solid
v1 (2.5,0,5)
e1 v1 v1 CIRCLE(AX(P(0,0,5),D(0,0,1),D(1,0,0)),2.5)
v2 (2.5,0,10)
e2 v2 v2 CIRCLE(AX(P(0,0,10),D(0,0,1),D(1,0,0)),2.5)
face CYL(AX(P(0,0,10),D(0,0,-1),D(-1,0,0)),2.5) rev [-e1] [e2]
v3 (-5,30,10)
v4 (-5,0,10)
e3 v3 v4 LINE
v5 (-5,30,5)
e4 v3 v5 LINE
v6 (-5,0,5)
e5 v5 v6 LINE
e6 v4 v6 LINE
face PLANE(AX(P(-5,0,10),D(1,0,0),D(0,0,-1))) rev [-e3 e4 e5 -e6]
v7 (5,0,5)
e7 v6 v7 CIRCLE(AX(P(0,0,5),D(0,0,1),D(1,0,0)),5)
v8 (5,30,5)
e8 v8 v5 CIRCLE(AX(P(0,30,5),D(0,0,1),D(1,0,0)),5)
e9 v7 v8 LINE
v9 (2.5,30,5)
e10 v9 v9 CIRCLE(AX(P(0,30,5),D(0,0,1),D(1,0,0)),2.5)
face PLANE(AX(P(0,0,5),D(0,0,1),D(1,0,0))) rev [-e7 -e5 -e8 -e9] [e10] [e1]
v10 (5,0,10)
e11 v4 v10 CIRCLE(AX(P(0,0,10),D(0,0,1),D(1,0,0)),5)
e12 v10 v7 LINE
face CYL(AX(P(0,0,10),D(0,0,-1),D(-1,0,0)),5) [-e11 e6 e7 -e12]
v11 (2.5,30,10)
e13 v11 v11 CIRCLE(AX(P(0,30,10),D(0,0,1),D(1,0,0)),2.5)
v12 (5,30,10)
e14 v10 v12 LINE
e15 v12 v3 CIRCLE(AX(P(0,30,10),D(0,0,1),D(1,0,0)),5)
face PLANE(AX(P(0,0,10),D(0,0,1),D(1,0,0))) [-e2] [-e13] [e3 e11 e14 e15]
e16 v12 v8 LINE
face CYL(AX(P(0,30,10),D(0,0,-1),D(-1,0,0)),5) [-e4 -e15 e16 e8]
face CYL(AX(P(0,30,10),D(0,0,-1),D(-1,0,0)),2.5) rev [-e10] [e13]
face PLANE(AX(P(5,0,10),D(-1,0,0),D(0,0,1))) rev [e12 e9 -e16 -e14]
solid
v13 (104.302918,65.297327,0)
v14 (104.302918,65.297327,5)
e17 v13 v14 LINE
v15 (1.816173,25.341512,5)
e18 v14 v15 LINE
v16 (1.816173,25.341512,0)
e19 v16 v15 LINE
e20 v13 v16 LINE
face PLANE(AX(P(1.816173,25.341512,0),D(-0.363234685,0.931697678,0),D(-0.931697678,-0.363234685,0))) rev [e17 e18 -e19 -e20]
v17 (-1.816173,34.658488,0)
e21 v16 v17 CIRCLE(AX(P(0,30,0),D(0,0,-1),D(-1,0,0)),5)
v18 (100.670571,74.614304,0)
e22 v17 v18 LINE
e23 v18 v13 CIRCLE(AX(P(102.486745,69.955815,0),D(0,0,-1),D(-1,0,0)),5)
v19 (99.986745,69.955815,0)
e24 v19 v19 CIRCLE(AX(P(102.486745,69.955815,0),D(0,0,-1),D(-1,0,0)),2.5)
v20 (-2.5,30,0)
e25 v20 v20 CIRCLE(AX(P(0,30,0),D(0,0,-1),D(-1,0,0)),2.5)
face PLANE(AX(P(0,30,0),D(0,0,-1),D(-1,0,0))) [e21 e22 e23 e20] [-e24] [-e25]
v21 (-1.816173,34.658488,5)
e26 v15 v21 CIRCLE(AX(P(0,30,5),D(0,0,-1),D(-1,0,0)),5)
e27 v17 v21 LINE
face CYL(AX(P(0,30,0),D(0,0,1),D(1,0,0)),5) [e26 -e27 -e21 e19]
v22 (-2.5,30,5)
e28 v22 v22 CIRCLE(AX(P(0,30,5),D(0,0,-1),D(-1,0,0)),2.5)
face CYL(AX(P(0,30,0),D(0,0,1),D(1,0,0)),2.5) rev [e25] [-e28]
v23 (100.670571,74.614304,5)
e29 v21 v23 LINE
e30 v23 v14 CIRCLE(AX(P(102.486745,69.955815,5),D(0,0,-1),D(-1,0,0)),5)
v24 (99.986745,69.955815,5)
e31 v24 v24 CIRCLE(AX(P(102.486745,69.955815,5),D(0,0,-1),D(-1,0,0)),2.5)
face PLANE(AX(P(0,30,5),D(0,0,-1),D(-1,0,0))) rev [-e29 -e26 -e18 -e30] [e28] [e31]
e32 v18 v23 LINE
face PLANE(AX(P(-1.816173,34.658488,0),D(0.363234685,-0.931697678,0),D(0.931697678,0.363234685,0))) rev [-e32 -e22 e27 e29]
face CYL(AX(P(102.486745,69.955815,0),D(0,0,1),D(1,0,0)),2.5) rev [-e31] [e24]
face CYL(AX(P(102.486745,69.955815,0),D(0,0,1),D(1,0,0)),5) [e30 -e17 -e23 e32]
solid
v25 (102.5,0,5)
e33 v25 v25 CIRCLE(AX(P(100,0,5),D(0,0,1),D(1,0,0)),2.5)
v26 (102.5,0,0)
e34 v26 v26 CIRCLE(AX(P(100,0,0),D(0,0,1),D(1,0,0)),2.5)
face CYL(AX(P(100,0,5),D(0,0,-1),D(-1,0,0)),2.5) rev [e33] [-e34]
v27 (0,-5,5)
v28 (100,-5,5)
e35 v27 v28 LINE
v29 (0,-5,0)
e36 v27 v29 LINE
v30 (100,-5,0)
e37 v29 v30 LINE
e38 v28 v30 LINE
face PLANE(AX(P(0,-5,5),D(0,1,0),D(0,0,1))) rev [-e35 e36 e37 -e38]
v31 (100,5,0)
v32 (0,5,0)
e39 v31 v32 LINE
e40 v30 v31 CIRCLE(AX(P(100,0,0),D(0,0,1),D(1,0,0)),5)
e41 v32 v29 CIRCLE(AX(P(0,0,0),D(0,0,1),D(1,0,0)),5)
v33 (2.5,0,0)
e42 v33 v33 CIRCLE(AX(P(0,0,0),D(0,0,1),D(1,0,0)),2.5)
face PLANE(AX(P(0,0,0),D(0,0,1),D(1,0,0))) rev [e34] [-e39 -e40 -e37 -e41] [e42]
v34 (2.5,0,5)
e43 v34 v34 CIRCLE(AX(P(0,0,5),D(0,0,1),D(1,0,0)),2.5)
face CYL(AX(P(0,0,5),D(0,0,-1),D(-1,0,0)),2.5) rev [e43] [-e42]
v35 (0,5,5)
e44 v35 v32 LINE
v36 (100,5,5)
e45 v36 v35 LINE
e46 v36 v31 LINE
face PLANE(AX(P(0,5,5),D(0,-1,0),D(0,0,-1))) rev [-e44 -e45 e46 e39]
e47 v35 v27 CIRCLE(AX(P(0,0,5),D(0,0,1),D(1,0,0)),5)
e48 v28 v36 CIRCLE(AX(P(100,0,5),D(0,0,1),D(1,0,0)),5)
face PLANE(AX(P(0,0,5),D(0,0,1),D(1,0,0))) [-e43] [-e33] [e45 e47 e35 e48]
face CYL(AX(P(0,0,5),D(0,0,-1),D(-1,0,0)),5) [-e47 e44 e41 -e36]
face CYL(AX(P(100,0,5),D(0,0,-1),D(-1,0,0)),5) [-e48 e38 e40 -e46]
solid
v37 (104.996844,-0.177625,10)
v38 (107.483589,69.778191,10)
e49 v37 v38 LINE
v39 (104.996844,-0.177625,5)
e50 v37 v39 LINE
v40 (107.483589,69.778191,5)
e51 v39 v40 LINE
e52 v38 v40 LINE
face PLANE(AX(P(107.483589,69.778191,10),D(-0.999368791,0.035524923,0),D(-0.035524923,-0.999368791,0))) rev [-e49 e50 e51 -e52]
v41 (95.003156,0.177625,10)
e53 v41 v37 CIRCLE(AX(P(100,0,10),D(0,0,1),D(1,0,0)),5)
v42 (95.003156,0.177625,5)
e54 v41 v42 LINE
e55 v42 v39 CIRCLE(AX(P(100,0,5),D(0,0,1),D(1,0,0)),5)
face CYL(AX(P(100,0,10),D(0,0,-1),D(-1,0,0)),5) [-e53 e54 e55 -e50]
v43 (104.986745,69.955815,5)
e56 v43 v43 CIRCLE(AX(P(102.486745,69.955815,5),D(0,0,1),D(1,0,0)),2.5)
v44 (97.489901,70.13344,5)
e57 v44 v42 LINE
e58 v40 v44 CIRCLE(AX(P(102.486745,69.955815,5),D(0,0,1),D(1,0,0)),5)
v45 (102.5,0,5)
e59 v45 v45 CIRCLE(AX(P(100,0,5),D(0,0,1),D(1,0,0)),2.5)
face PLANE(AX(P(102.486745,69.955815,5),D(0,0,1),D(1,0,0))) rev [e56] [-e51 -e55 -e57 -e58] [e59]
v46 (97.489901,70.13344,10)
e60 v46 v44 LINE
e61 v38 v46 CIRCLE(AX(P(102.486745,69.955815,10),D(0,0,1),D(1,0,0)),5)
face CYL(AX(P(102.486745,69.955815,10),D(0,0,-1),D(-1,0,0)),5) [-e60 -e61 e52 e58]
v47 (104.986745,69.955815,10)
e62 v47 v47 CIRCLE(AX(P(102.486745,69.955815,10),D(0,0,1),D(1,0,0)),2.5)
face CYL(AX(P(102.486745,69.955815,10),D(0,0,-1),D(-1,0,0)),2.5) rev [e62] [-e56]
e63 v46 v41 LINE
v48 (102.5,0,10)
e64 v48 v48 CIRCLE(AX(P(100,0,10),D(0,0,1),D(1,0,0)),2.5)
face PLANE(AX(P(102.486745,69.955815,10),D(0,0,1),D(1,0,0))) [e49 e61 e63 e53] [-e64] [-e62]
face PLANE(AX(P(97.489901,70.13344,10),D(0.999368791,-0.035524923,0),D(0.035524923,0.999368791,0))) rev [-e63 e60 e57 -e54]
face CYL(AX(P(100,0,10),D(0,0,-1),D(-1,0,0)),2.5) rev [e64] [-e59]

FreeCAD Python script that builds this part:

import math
import FreeCAD as App
import Part
import Sketcher
Q = App.Units.Quantity

doc = App.newDocument("Part")
body = doc.addObject("PartDesign::Body", "Body")

sketch1 = body.newObject("Sketcher::SketchObject", "Sketch")
sketch1.AttachmentSupport = (doc.getObject("XY_Plane"), [""])
sketch1.MapMode = "FlatFace"
sketch1.addGeometry([
    Part.LineSegment(App.Vector(100, 5, 0), App.Vector(0, 5, 0)),
    Part.ArcOfCircle(Part.Circle(App.Vector(0, 0, 0), App.Vector(0, 0, 1), 5), math.radians(90), math.radians(270)),
    Part.LineSegment(App.Vector(0, -5, 0), App.Vector(100, -5, 0)),
    Part.ArcOfCircle(Part.Circle(App.Vector(100, 0, 0), App.Vector(0, 0, 1), 5), math.radians(-90), math.radians(90)),
    Part.Circle(App.Vector(100, 0, 0), App.Vector(0, 0, 1), 2.5),
    Part.Circle(App.Vector(0, 0, 0), App.Vector(0, 0, 1), 2.5),
], False)
sketch1.addConstraint([
    Sketcher.Constraint("Tangent", 0, 2, 1, 1),
    Sketcher.Constraint("Tangent", 1, 2, 2, 1),
    Sketcher.Constraint("Tangent", 2, 2, 3, 1),
    Sketcher.Constraint("Tangent", 3, 2, 0, 1),
    Sketcher.Constraint("Horizontal", 0),
    Sketcher.Constraint("Horizontal", 2),
    Sketcher.Constraint("Coincident", 1, 3, -1, 1),
    Sketcher.Constraint("Coincident", 5, 3, -1, 1),
    Sketcher.Constraint("Coincident", 4, 3, 3, 3),
    Sketcher.Constraint("Equal", 4, 5),
    Sketcher.Constraint("Diameter", 4, Q("5 mm")),
    Sketcher.Constraint("Radius", 1, Q("5 mm")),
    Sketcher.Constraint("DistanceX", 0, 2, 0, 1, Q("100 mm")),
])
pad1 = body.newObject("PartDesign::Pad", "Pad")
pad1.Profile = sketch1
pad1.Length = 5
body2 = doc.addObject("PartDesign::Body", "Body001")

sketch2 = body2.newObject("Sketcher::SketchObject", "Sketch001")
sketch2.AttachmentSupport = (doc.getObject("XY_Plane001"), [""])
sketch2.MapMode = "FlatFace"
sketch2.AttachmentOffset = App.Placement(App.Vector(0, 0, 5), App.Rotation())
sketch2.addGeometry([
    Part.LineSegment(App.Vector(-5, 30, 0), App.Vector(-5, 0, 0)),
    Part.ArcOfCircle(Part.Circle(App.Vector(0, 0, 0), App.Vector(0, 0, 1), 5), math.radians(180), math.radians(360)),
    Part.LineSegment(App.Vector(5, 0, 0), App.Vector(5, 30, 0)),
    Part.ArcOfCircle(Part.Circle(App.Vector(0, 30, 0), App.Vector(0, 0, 1), 5), math.radians(0), math.radians(180)),
    Part.Circle(App.Vector(0, 0, 0), App.Vector(0, 0, 1), 2.5),
    Part.Circle(App.Vector(0, 30, 0), App.Vector(0, 0, 1), 2.5),
], False)
sketch2.addConstraint([
    Sketcher.Constraint("Tangent", 0, 2, 1, 1),
    Sketcher.Constraint("Tangent", 1, 2, 2, 1),
    Sketcher.Constraint("Tangent", 2, 2, 3, 1),
    Sketcher.Constraint("Tangent", 3, 2, 0, 1),
    Sketcher.Constraint("Vertical", 0),
    Sketcher.Constraint("Vertical", 2),
    Sketcher.Constraint("Coincident", 1, 3, -1, 1),
    Sketcher.Constraint("Coincident", 4, 3, -1, 1),
    Sketcher.Constraint("Coincident", 5, 3, 3, 3),
    Sketcher.Constraint("Equal", 4, 5),
    Sketcher.Constraint("Diameter", 4, Q("5 mm")),
    Sketcher.Constraint("Radius", 1, Q("5 mm")),
    Sketcher.Constraint("DistanceY", 0, 2, 0, 1, Q("30 mm")),
])
pad2 = body2.newObject("PartDesign::Pad", "Pad001")
pad2.Profile = sketch2
pad2.Length = 5
body3 = doc.addObject("PartDesign::Body", "Body002")

sketch3 = body3.newObject("Sketcher::SketchObject", "Sketch002")
sketch3.AttachmentSupport = (doc.getObject("XY_Plane002"), [""])
sketch3.MapMode = "FlatFace"
sketch3.AttachmentOffset = App.Placement(App.Vector(0, 0, 5), App.Rotation())
sketch3.addGeometry([
    Part.LineSegment(App.Vector(104.302918, 65.297327, 0), App.Vector(1.816173, 25.341512, 0)),
    Part.ArcOfCircle(Part.Circle(App.Vector(0, 30, 0), App.Vector(0, 0, 1), 5), math.radians(111.298983), math.radians(291.298983)),
    Part.LineSegment(App.Vector(-1.816173, 34.658488, 0), App.Vector(100.670571, 74.614304, 0)),
    Part.ArcOfCircle(Part.Circle(App.Vector(102.486745, 69.955815, 0), App.Vector(0, 0, 1), 5), math.radians(-68.701017), math.radians(111.298983)),
    Part.Circle(App.Vector(0, 30, 0), App.Vector(0, 0, 1), 2.5),
    Part.Circle(App.Vector(102.486745, 69.955815, 0), App.Vector(0, 0, 1), 2.5),
], False)
sketch3.addConstraint([
    Sketcher.Constraint("Tangent", 0, 2, 1, 2),
    Sketcher.Constraint("Tangent", 1, 1, 2, 1),
    Sketcher.Constraint("Tangent", 2, 2, 3, 2),
    Sketcher.Constraint("Tangent", 3, 1, 0, 1),
    Sketcher.Constraint("Coincident", 4, 3, 1, 3),
    Sketcher.Constraint("Coincident", 5, 3, 3, 3),
    Sketcher.Constraint("Equal", 1, 3),
    Sketcher.Constraint("Equal", 4, 5),
    Sketcher.Constraint("PointOnObject", 1, 3, -2),
    Sketcher.Constraint("Diameter", 4, Q("5 mm")),
    Sketcher.Constraint("Radius", 1, Q("5 mm")),
    Sketcher.Constraint("Distance", 0, Q("110 mm")),
    Sketcher.Constraint("DistanceY", -1, 1, 1, 3, Q("30 mm")),
    Sketcher.Constraint("DistanceY", -1, 1, 0, 2, Q("25.341512 mm")),
])
pad3 = body3.newObject("PartDesign::Pad", "Pad002")
pad3.Profile = sketch3
pad3.Length = 5
pad3.Reversed = True
body4 = doc.addObject("PartDesign::Body", "Body003")

sketch4 = body4.newObject("Sketcher::SketchObject", "Sketch003")
sketch4.AttachmentSupport = (doc.getObject("XY_Plane003"), [""])
sketch4.MapMode = "FlatFace"
sketch4.AttachmentOffset = App.Placement(App.Vector(0, 0, 5), App.Rotation())
sketch4.addGeometry([
    Part.LineSegment(App.Vector(104.996844, -0.177625, 0), App.Vector(107.483589, 69.778191, 0)),
    Part.ArcOfCircle(Part.Circle(App.Vector(102.486745, 69.955815, 0), App.Vector(0, 0, 1), 5), math.radians(-2.035857), math.radians(177.964143)),
    Part.LineSegment(App.Vector(97.489901, 70.13344, 0), App.Vector(95.003156, 0.177625, 0)),
    Part.ArcOfCircle(Part.Circle(App.Vector(100, 0, 0), App.Vector(0, 0, 1), 5), math.radians(177.964143), math.radians(357.964143)),
    Part.Circle(App.Vector(100, 0, 0), App.Vector(0, 0, 1), 2.5),
    Part.Circle(App.Vector(102.486745, 69.955815, 0), App.Vector(0, 0, 1), 2.5),
], False)
sketch4.addConstraint([
    Sketcher.Constraint("Tangent", 0, 2, 1, 1),
    Sketcher.Constraint("Tangent", 1, 2, 2, 1),
    Sketcher.Constraint("Tangent", 2, 2, 3, 1),
    Sketcher.Constraint("Tangent", 3, 2, 0, 1),
    Sketcher.Constraint("Coincident", 4, 3, 3, 3),
    Sketcher.Constraint("Coincident", 5, 3, 1, 3),
    Sketcher.Constraint("Equal", 1, 3),
    Sketcher.Constraint("Equal", 4, 5),
    Sketcher.Constraint("PointOnObject", 3, 3, -1),
    Sketcher.Constraint("Diameter", 4, Q("5 mm")),
    Sketcher.Constraint("Radius", 1, Q("5 mm")),
    Sketcher.Constraint("Distance", 0, Q("70 mm")),
    Sketcher.Constraint("DistanceX", -1, 1, 3, 3, Q("100 mm")),
    Sketcher.Constraint("DistanceX", -1, 1, 1, 2, Q("97.489901 mm")),
])
pad4 = body4.newObject("PartDesign::Pad", "Pad003")
pad4.Profile = sketch4
pad4.Length = 5

doc.recompute()
